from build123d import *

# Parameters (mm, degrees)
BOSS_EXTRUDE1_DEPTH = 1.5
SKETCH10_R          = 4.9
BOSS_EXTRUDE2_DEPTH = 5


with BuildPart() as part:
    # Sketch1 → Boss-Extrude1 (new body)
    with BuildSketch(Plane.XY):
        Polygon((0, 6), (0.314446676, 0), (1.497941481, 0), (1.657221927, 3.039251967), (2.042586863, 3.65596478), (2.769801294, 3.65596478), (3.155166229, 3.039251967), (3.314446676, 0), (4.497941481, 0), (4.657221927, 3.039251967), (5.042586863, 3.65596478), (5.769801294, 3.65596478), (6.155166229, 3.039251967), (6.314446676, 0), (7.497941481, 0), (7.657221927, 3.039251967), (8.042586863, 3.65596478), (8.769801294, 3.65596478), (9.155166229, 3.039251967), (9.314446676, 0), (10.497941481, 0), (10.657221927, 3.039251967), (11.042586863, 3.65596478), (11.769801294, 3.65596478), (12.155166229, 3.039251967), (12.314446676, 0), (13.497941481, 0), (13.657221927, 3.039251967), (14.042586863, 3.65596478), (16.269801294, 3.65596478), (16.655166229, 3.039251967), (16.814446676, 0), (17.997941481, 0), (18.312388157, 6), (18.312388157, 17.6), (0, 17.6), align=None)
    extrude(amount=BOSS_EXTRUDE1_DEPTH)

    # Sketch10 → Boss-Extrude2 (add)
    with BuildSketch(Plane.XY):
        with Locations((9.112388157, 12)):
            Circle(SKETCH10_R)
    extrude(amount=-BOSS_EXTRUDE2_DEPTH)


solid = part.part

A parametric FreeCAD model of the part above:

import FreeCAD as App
import Part
import Sketcher
from FreeCAD import Vector
Q = App.Units.Quantity

doc = App.newDocument("Part")
body = doc.addObject("PartDesign::Body", "Body")

# Sketch on XY plane
sketch1 = body.newObject("Sketcher::SketchObject", "Sketch")
sketch1.AttachmentSupport = (doc.getObject("XY_Plane"), [""])
sketch1.MapMode = "FlatFace"
sketch1.addGeometry([
    Part.LineSegment(Vector(0, 6, 0), Vector(0.3, 0, 0)),  # 0
    Part.LineSegment(Vector(0.3, 0, 0), Vector(1.5, 0, 0)),  # 1
    Part.LineSegment(Vector(1.5, 0, 0), Vector(1.7, 3, 0)),  # 2
    Part.LineSegment(Vector(1.7, 3, 0), Vector(2, 3.7, 0)),  # 3
    Part.LineSegment(Vector(2, 3.7, 0), Vector(2.8, 3.7, 0)),  # 4
    Part.LineSegment(Vector(2.8, 3.7, 0), Vector(3.2, 3, 0)),  # 5
    Part.LineSegment(Vector(3.2, 3, 0), Vector(3.3, 0, 0)),  # 6
    Part.LineSegment(Vector(3.3, 0, 0), Vector(4.5, 0, 0)),  # 7
    Part.LineSegment(Vector(4.5, 0, 0), Vector(4.7, 3, 0)),  # 8
    Part.LineSegment(Vector(4.7, 3, 0), Vector(5, 3.7, 0)),  # 9
    Part.LineSegment(Vector(5, 3.7, 0), Vector(5.8, 3.7, 0)),  # 10
    Part.LineSegment(Vector(5.8, 3.7, 0), Vector(6.2, 3, 0)),  # 11
    Part.LineSegment(Vector(6.2, 3, 0), Vector(6.3, 0, 0)),  # 12
    Part.LineSegment(Vector(6.3, 0, 0), Vector(7.5, 0, 0)),  # 13
    Part.LineSegment(Vector(7.5, 0, 0), Vector(7.7, 3, 0)),  # 14
    Part.LineSegment(Vector(7.7, 3, 0), Vector(8, 3.7, 0)),  # 15
    Part.LineSegment(Vector(8, 3.7, 0), Vector(8.8, 3.7, 0)),  # 16
    Part.LineSegment(Vector(8.8, 3.7, 0), Vector(9.2, 3, 0)),  # 17
    Part.LineSegment(Vector(9.2, 3, 0), Vector(9.3, 0, 0)),  # 18
    Part.LineSegment(Vector(9.3, 0, 0), Vector(10.5, 0, 0)),  # 19
    Part.LineSegment(Vector(10.5, 0, 0), Vector(10.7, 3, 0)),  # 20
    Part.LineSegment(Vector(10.7, 3, 0), Vector(11, 3.7, 0)),  # 21
    Part.LineSegment(Vector(11, 3.7, 0), Vector(11.8, 3.7, 0)),  # 22
    Part.LineSegment(Vector(11.8, 3.7, 0), Vector(12.2, 3, 0)),  # 23
    Part.LineSegment(Vector(12.2, 3, 0), Vector(12.3, 0, 0)),  # 24
    Part.LineSegment(Vector(12.3, 0, 0), Vector(13.5, 0, 0)),  # 25
    Part.LineSegment(Vector(13.5, 0, 0), Vector(13.7, 3, 0)),  # 26
    Part.LineSegment(Vector(13.7, 3, 0), Vector(14, 3.7, 0)),  # 27
    Part.LineSegment(Vector(14, 3.7, 0), Vector(16.3, 3.7, 0)),  # 28
    Part.LineSegment(Vector(16.3, 3.7, 0), Vector(16.7, 3, 0)),  # 29
    Part.LineSegment(Vector(16.7, 3, 0), Vector(16.8, 0, 0)),  # 30
    Part.LineSegment(Vector(16.8, 0, 0), Vector(18, 0, 0)),  # 31
    Part.LineSegment(Vector(18, 0, 0), Vector(18.3, 6, 0)),  # 32
    Part.LineSegment(Vector(18.3, 6, 0), Vector(18.3, 17.6, 0)),  # 33
    Part.LineSegment(Vector(18.3, 17.6, 0), Vector(0, 17.6, 0)),  # 34
    Part.LineSegment(Vector(0, 17.6, 0), Vector(0, 6, 0)),  # 35
], False)
sketch1.addConstraint([
    Sketcher.Constraint("Coincident", 0, 2, 1, 1),
    Sketcher.Constraint("Coincident", 1, 2, 2, 1),
    Sketcher.Constraint("Coincident", 2, 2, 3, 1),
    Sketcher.Constraint("Coincident", 3, 2, 4, 1),
    Sketcher.Constraint("Coincident", 4, 2, 5, 1),
    Sketcher.Constraint("Coincident", 5, 2, 6, 1),
    Sketcher.Constraint("Coincident", 6, 2, 7, 1),
    Sketcher.Constraint("Coincident", 7, 2, 8, 1),
    Sketcher.Constraint("Coincident", 8, 2, 9, 1),
    Sketcher.Constraint("Coincident", 9, 2, 10, 1),
    Sketcher.Constraint("Coincident", 10, 2, 11, 1),
    Sketcher.Constraint("Coincident", 11, 2, 12, 1),
    Sketcher.Constraint("Coincident", 12, 2, 13, 1),
    Sketcher.Constraint("Coincident", 13, 2, 14, 1),
    Sketcher.Constraint("Coincident", 14, 2, 15, 1),
    Sketcher.Constraint("Coincident", 15, 2, 16, 1),
    Sketcher.Constraint("Coincident", 16, 2, 17, 1),
    Sketcher.Constraint("Coincident", 17, 2, 18, 1),
    Sketcher.Constraint("Coincident", 18, 2, 19, 1),
    Sketcher.Constraint("Coincident", 19, 2, 20, 1),
    Sketcher.Constraint("Coincident", 20, 2, 21, 1),
    Sketcher.Constraint("Coincident", 21, 2, 22, 1),
    Sketcher.Constraint("Coincident", 22, 2, 23, 1),
    Sketcher.Constraint("Coincident", 23, 2, 24, 1),
    Sketcher.Constraint("Coincident", 24, 2, 25, 1),
    Sketcher.Constraint("Coincident", 25, 2, 26, 1),
    Sketcher.Constraint("Coincident", 26, 2, 27, 1),
    Sketcher.Constraint("Coincident", 27, 2, 28, 1),
    Sketcher.Constraint("Coincident", 28, 2, 29, 1),
    Sketcher.Constraint("Coincident", 29, 2, 30, 1),
    Sketcher.Constraint("Coincident", 30, 2, 31, 1),
    Sketcher.Constraint("Coincident", 31, 2, 32, 1),
    Sketcher.Constraint("Coincident", 32, 2, 33, 1),
    Sketcher.Constraint("Coincident", 33, 2, 34, 1),
    Sketcher.Constraint("Coincident", 34, 2, 35, 1),
    Sketcher.Constraint("Coincident", 35, 2, 0, 1),
    Sketcher.Constraint("Horizontal", 1),
    Sketcher.Constraint("Horizontal", 4),
    Sketcher.Constraint("Horizontal", 7),
    Sketcher.Constraint("Horizontal", 10),
    Sketcher.Constraint("Horizontal", 13),
    Sketcher.Constraint("Horizontal", 16),
    Sketcher.Constraint("Horizontal", 19),
    Sketcher.Constraint("Horizontal", 22),
    Sketcher.Constraint("Horizontal", 25),
    Sketcher.Constraint("Horizontal", 28),
    Sketcher.Constraint("Horizontal", 31),
    Sketcher.Constraint("Vertical", 33),
    Sketcher.Constraint("Horizontal", 34),
    Sketcher.Constraint("Vertical", 35),
    Sketcher.Constraint("PointOnObject", 0, 2, -1),
    Sketcher.Constraint("PointOnObject", 6, 2, -1),
    Sketcher.Constraint("PointOnObject", 12, 2, -1),
    Sketcher.Constraint("PointOnObject", 18, 2, -1),
    Sketcher.Constraint("PointOnObject", 24, 2, -1),
    Sketcher.Constraint("PointOnObject", 30, 2, -1),
    Sketcher.Constraint("PointOnObject", 34, 2, -2),
    Sketcher.Constraint("Parallel", 0, 6),
    Sketcher.Constraint("Parallel", 2, 8),
    Sketcher.Constraint("Parallel", 3, 9),
    Sketcher.Constraint("Parallel", 5, 11),
    Sketcher.Constraint("Parallel", 6, 12),
    Sketcher.Constraint("Parallel", 8, 14),
    Sketcher.Constraint("Parallel", 9, 15),
    Sketcher.Constraint("Parallel", 11, 17),
    Sketcher.Constraint("Parallel", 12, 18),
    Sketcher.Constraint("Parallel", 14, 20),
    Sketcher.Constraint("Parallel", 15, 21),
    Sketcher.Constraint("Parallel", 17, 23),
    Sketcher.Constraint("Parallel", 18, 24),
    Sketcher.Constraint("Parallel", 20, 26),
    Sketcher.Constraint("Parallel", 21, 27),
    Sketcher.Constraint("Parallel", 23, 29),
    Sketcher.Constraint("Parallel", 24, 30),
    Sketcher.Constraint("Parallel", 26, 32),
    Sketcher.Constraint("Horizontal", 2, 2, 5, 2),
    Sketcher.Constraint("Horizontal", 5, 2, 8, 2),
    Sketcher.Constraint("Horizontal", 4, 2, 9, 2),
    Sketcher.Constraint("Horizontal", 8, 2, 11, 2),
    Sketcher.Constraint("Horizontal", 11, 2, 14, 2),
    Sketcher.Constraint("Horizontal", 10, 2, 15, 2),
    Sketcher.Constraint("Horizontal", 14, 2, 17, 2),
    Sketcher.Constraint("Horizontal", 17, 2, 20, 2),
    Sketcher.Constraint("Horizontal", 16, 2, 21, 2),
    Sketcher.Constraint("Horizontal", 20, 2, 23, 2),
    Sketcher.Constraint("Horizontal", 23, 2, 26, 2),
    Sketcher.Constraint("Horizontal", 22, 2, 27, 2),
    Sketcher.Constraint("Horizontal", 26, 2, 29, 2),
    Sketcher.Constraint("Horizontal", 32, 2, 35, 2),
    Sketcher.Constraint("Equal", 1, 7),
    Sketcher.Constraint("Equal", 4, 10),
    Sketcher.Constraint("Equal", 7, 13),
    Sketcher.Constraint("Equal", 10, 16),
    Sketcher.Constraint("Equal", 13, 19),
    Sketcher.Constraint("Equal", 16, 22),
    Sketcher.Constraint("Equal", 19, 25),
    Sketcher.Constraint("Equal", 25, 31),
    Sketcher.Constraint("Equal", 3, 5),
    Sketcher.Constraint("Equal", 2, 6),
    Sketcher.Constraint("Angle", 0, Q("-87 deg")),
    Sketcher.Constraint("Angle", 3, Q("58 deg")),
    Sketcher.Constraint("DistanceY", 33, 1, 33, 2, 11.6),
    Sketcher.Constraint("DistanceY", -1, 1, 32, 2, 6.0),
    Sketcher.Constraint("DistanceX", 0, 2, 6, 2, 3.0),
    Sketcher.Constraint("DistanceX", 22, 2, 28, 2, 4.5),
    Sketcher.Constraint("DistanceX", 34, 2, 34, 1, 18.312388),
    Sketcher.Constraint("DistanceX", -1, 1, 4, 2, 2.769801),
    Sketcher.Constraint("DistanceX", -1, 1, 2, 2, 1.657222),
])
pad1 = body.newObject("PartDesign::Pad", "Pad")
pad1.Profile = sketch1
pad1.Length = 1.5

# Sketch on XY plane
sketch2 = body.newObject("Sketcher::SketchObject", "Sketch001")
sketch2.AttachmentSupport = (doc.getObject("XY_Plane"), [""])
sketch2.MapMode = "FlatFace"
sketch2.addGeometry(Part.Circle(Vector(9.1, 12, 0), Vector(0, 0, 1), 4.9), False)
sketch2.addConstraint([
    Sketcher.Constraint("Diameter", 0, 9.8),
    Sketcher.Constraint("DistanceY", -1, 1, 0, 3, 12.0),
    Sketcher.Constraint("DistanceX", -1, 1, 0, 3, 9.112388),
])
pad2 = body.newObject("PartDesign::Pad", "Pad001")
pad2.Profile = sketch2
pad2.Length = 5
pad2.Reversed = True

doc.recompute()
